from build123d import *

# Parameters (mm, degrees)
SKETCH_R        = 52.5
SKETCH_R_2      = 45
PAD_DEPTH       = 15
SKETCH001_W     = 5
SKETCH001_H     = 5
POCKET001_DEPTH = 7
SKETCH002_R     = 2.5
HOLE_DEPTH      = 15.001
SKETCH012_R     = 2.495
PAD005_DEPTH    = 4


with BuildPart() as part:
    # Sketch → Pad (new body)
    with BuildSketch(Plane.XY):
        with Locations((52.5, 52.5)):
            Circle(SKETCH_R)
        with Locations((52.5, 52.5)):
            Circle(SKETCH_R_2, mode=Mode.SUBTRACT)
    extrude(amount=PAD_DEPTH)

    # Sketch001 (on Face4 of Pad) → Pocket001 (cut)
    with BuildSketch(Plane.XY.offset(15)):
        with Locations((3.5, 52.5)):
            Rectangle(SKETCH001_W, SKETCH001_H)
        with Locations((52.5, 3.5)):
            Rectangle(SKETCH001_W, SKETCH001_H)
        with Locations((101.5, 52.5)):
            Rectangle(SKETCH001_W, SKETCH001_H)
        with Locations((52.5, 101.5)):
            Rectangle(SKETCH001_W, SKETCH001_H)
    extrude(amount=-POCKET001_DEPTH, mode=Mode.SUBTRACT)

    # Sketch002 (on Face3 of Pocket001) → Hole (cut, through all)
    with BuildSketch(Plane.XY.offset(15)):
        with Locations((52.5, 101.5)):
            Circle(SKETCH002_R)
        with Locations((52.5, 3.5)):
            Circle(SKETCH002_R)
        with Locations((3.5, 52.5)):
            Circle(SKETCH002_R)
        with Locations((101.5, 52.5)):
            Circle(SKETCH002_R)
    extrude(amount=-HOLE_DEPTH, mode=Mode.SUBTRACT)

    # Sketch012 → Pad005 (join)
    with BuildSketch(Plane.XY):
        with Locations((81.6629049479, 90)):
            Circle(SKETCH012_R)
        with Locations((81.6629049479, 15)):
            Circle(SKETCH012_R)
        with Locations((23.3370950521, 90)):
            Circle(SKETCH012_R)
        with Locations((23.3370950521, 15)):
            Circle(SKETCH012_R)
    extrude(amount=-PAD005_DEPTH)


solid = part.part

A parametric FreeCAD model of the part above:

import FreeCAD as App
import Part
import Sketcher

V = App.Vector
Q = App.Units.Quantity


def add_polygon(sketch, points):
    """Adds a closed chain of lines whose ends are joined by coincident constraints."""
    first, n = sketch.GeometryCount, len(points)
    for a, b in zip(points, points[1:] + points[:1]):
        sketch.addGeometry(Part.LineSegment(App.Vector(*a, 0), App.Vector(*b, 0)), False)
    for i in range(n):
        sketch.addConstraint(Sketcher.Constraint("Coincident", first + i, 2, first + (i + 1) % n, 1))

doc = App.newDocument("Part")
params = doc.addObject("Spreadsheet::Sheet", "Params")
for row, (alias, value) in enumerate([
    ("sketch1_diameter", "105 mm"),
    ("sketch1_diameter2", "90 mm"),
    ("pad1_length", "15 mm"),
    ("sketch2_width", "5 mm"),
    ("pocket1_length", "7 mm"),
    ("sketch3_diameter", "5 mm"),
    ("sketch4_diameter", "4.99 mm"),
    ("pad2_length", "4 mm"),
], start=1):
    params.set(f"A{row}", alias)
    params.set(f"B{row}", "=" + value)
    params.setAlias(f"B{row}", alias)

body = doc.addObject("PartDesign::Body", "Body")

sketch1 = doc.addObject("Sketcher::SketchObject", "Sketch")
body.addObject(sketch1)
sketch1.AttachmentSupport = (doc.XY_Plane, [""])
sketch1.MapMode = "FlatFace"
sketch1.addGeometry([
    Part.Circle(V(52, 52, 0), V(0, 0, 1), 52),
    Part.Circle(V(52, 52, 0), V(0, 0, 1), 45),
], False)
sketch1.addConstraint([
    Sketcher.Constraint("Coincident", 1, 3, 0, 3),
    Sketcher.Constraint("Diameter", 0, Q("105 mm")),
    Sketcher.Constraint("Diameter", 1, Q("90 mm")),
    Sketcher.Constraint("DistanceX", -1, 1, 0, 3, Q("52.5 mm")),
    Sketcher.Constraint("DistanceY", -1, 1, 0, 3, Q("52.5 mm")),
])
sketch1.setExpression("Constraints[1]", "Params.sketch1_diameter")
sketch1.setExpression("Constraints[2]", "Params.sketch1_diameter2")
pad1 = doc.addObject("PartDesign::Pad", "Pad")
body.addObject(pad1)
pad1.Profile = sketch1
pad1.setExpression("Length", "Params.pad1_length")

sketch2 = doc.addObject("Sketcher::SketchObject", "Sketch001")
body.addObject(sketch2)
sketch2.AttachmentSupport = (doc.XY_Plane, [""])
sketch2.MapMode = "FlatFace"
sketch2.AttachmentOffset = App.Placement(V(0, 0, 15), App.Rotation())
add_polygon(sketch2, [(1, 55), (1, 50), (6, 50), (6, 55)])
add_polygon(sketch2, [(50, 6), (50, 1), (55, 1), (55, 6)])
add_polygon(sketch2, [(99, 55), (99, 50), (104, 50), (104, 55)])
add_polygon(sketch2, [(50, 104), (50, 99), (55, 99), (55, 104)])
sketch2.addConstraint([
    Sketcher.Constraint("Vertical", 0),
    Sketcher.Constraint("Horizontal", 1),
    Sketcher.Constraint("Vertical", 2),
    Sketcher.Constraint("Horizontal", 3),
    Sketcher.Constraint("Vertical", 4),
    Sketcher.Constraint("Horizontal", 5),
    Sketcher.Constraint("Vertical", 6),
    Sketcher.Constraint("Horizontal", 7),
    Sketcher.Constraint("Vertical", 8),
    Sketcher.Constraint("Horizontal", 9),
    Sketcher.Constraint("Vertical", 10),
    Sketcher.Constraint("Horizontal", 11),
    Sketcher.Constraint("Vertical", 12),
    Sketcher.Constraint("Horizontal", 13),
    Sketcher.Constraint("Vertical", 14),
    Sketcher.Constraint("Horizontal", 15),
    Sketcher.Constraint("Horizontal", 1, 2, 8, 2),
    Sketcher.Constraint("Horizontal", 3, 2, 10, 2),
    Sketcher.Constraint("Vertical", 7, 2, 12, 2),
    Sketcher.Constraint("Vertical", 6, 2, 13, 2),
    Sketcher.Constraint("Equal", 3, 5),
    Sketcher.Constraint("Equal", 7, 9),
    Sketcher.Constraint("Equal", 15, 0),
    Sketcher.Constraint("Equal", 2, 4),
    Sketcher.Constraint("Equal", 10, 12),
    Sketcher.Constraint("DistanceX", 1, 1, 1, 2, Q("5 mm")),
    Sketcher.Constraint("DistanceX", -1, 1, 0, 2, Q("1 mm")),
    Sketcher.Constraint("DistanceY", -1, 1, 0, 2, Q("50 mm")),
    Sketcher.Constraint("DistanceX", -1, 1, 4, 2, Q("50 mm")),
    Sketcher.Constraint("DistanceY", -1, 1, 4, 2, Q("1 mm")),
    Sketcher.Constraint("DistanceX", -1, 1, 8, 2, Q("99 mm")),
    Sketcher.Constraint("DistanceY", -1, 1, 12, 2, Q("99 mm")),
])
sketch2.setExpression("Constraints[41]", "Params.sketch2_width")
pocket1 = doc.addObject("PartDesign::Pocket", "Pocket")
body.addObject(pocket1)
pocket1.Profile = sketch2
pocket1.setExpression("Length", "Params.pocket1_length")

sketch3 = doc.addObject("Sketcher::SketchObject", "Sketch002")
body.addObject(sketch3)
sketch3.AttachmentSupport = (doc.XY_Plane, [""])
sketch3.MapMode = "FlatFace"
sketch3.AttachmentOffset = App.Placement(V(0, 0, 15), App.Rotation())
sketch3.addGeometry([
    Part.Circle(V(52.5, 101.5, 0), V(0, 0, 1), 2.5),
    Part.Circle(V(52.5, 3.5, 0), V(0, 0, 1), 2.5),
    Part.Circle(V(3.5, 52.5, 0), V(0, 0, 1), 2.5),
    Part.Circle(V(101.5, 52.5, 0), V(0, 0, 1), 2.5),
], False)
sketch3.addConstraint([
    Sketcher.Constraint("Equal", 0, 1),
    Sketcher.Constraint("Equal", 1, 2),
    Sketcher.Constraint("Equal", 2, 3),
    Sketcher.Constraint("Horizontal", 2, 3, 3, 3),
    Sketcher.Constraint("Vertical", 0, 3, 1, 3),
    Sketcher.Constraint("Diameter", 0, Q("5 mm")),
    Sketcher.Constraint("DistanceY", 1, 3, 0, 3, Q("98 mm")),
    Sketcher.Constraint("DistanceX", 2, 3, 0, 3, Q("49 mm")),
    Sketcher.Constraint("DistanceY", 2, 3, 0, 3, Q("49 mm")),
    Sketcher.Constraint("DistanceX", 0, 3, 3, 3, Q("49 mm")),
    Sketcher.Constraint("DistanceX", -1, 1, 0, 3, Q("52.5 mm")),
    Sketcher.Constraint("DistanceY", -1, 1, 0, 3, Q("101.5 mm")),
])
sketch3.setExpression("Constraints[5]", "Params.sketch3_diameter")
pocket2 = doc.addObject("PartDesign::Pocket", "Pocket001")
body.addObject(pocket2)
pocket2.Profile = sketch3
pocket2.Type = "ThroughAll"

sketch4 = doc.addObject("Sketcher::SketchObject", "Sketch003")
body.addObject(sketch4)
sketch4.AttachmentSupport = (doc.XY_Plane, [""])
sketch4.MapMode = "FlatFace"
sketch4.addGeometry([
    Part.Circle(V(81.7, 90, 0), V(0, 0, 1), 2.5),
    Part.Circle(V(81.7, 15, 0), V(0, 0, 1), 2.5),
    Part.Circle(V(23.3, 90, 0), V(0, 0, 1), 2.5),
    Part.Circle(V(23.3, 15, 0), V(0, 0, 1), 2.5),
], False)
sketch4.addConstraint([
    Sketcher.Constraint("Equal", 0, 1),
    Sketcher.Constraint("Equal", 1, 2),
    Sketcher.Constraint("Equal", 2, 3),
    Sketcher.Constraint("Horizontal", 0, 3, 2, 3),
    Sketcher.Constraint("Horizontal", 1, 3, 3, 3),
    Sketcher.Constraint("Vertical", 0, 3, 1, 3),
    Sketcher.Constraint("Vertical", 2, 3, 3, 3),
    Sketcher.Constraint("Diameter", 0, Q("4.99 mm")),
    Sketcher.Constraint("DistanceY", -1, 1, 0, 3, Q("90 mm")),
    Sketcher.Constraint("DistanceY", -1, 1, 1, 3, Q("15 mm")),
    Sketcher.Constraint("DistanceX", 2, 3, 0, 3, Q("58.32581 mm")),
    Sketcher.Constraint("DistanceX", -1, 1, 0, 3, Q("81.662905 mm")),
])
sketch4.setExpression("Constraints[7]", "Params.sketch4_diameter")
pad2 = doc.addObject("PartDesign::Pad", "Pad001")
body.addObject(pad2)
pad2.Profile = sketch4
pad2.setExpression("Length", "Params.pad2_length")
pad2.Reversed = True

doc.recompute()
